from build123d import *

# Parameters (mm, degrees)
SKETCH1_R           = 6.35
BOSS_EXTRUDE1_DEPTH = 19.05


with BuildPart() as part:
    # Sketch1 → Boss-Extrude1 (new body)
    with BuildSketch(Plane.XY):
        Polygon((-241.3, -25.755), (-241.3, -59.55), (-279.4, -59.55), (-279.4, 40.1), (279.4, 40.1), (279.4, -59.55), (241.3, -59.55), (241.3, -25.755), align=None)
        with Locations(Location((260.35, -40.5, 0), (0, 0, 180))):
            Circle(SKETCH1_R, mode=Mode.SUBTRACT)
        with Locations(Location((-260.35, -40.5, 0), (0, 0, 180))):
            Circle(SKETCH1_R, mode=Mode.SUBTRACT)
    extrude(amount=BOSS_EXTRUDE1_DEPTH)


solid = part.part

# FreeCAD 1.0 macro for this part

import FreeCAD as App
import Part
import Sketcher
Q = App.Units.Quantity


def add_polygon(sketch, points):
    """Adds a closed chain of lines whose ends are joined by coincident constraints."""
    first, n = sketch.GeometryCount, len(points)
    for a, b in zip(points, points[1:] + points[:1]):
        sketch.addGeometry(Part.LineSegment(App.Vector(*a, 0), App.Vector(*b, 0)), False)
    for i in range(n):
        sketch.addConstraint(Sketcher.Constraint("Coincident", first + i, 2, first + (i + 1) % n, 1))

doc = App.newDocument("Part")
body = doc.addObject("PartDesign::Body", "Body")

# Sketch on XY plane
sketch1 = doc.addObject("Sketcher::SketchObject", "Sketch")
body.addObject(sketch1)
sketch1.AttachmentSupport = (doc.XY_Plane, [""])
sketch1.MapMode = "FlatFace"
add_polygon(sketch1, [(-241.3, -59.55), (-241.3, -25.755), (241.3, -25.755), (241.3, -59.55), (279.4, -59.55), (279.4, 40.1), (-279.4, 40.1), (-279.4, -59.55)])  # lines 0-7
sketch1.addGeometry(Part.Circle(App.Vector(260.35, -40.5, 0), App.Vector(0, 0, 1), 6.35), False)  # 8
sketch1.addGeometry(Part.Circle(App.Vector(-260.35, -40.5, 0), App.Vector(0, 0, 1), 6.35), False)  # 9
sketch1.addConstraint(Sketcher.Constraint("Vertical", 0))
sketch1.addConstraint(Sketcher.Constraint("Horizontal", 1))
sketch1.addConstraint(Sketcher.Constraint("Vertical", 2))
sketch1.addConstraint(Sketcher.Constraint("Horizontal", 3))
sketch1.addConstraint(Sketcher.Constraint("Vertical", 4))
sketch1.addConstraint(Sketcher.Constraint("Horizontal", 5))
sketch1.addConstraint(Sketcher.Constraint("Vertical", 6))
sketch1.addConstraint(Sketcher.Constraint("Horizontal", 7))
sketch1.addConstraint(Sketcher.Constraint("Equal", 8, 9))
sketch1.addConstraint(Sketcher.Constraint("Symmetric", 8, 3, 9, 3, -2))
sketch1.addConstraint(Sketcher.Constraint("Symmetric", 3, 2, 6, 2, -2))
sketch1.addConstraint(Sketcher.Constraint("Equal", 3, 7))
sketch1.addConstraint(Sketcher.Constraint("Diameter", 8, Q("0.5 in")))
sketch1.addConstraint(Sketcher.Constraint("DistanceX", 1, 1, 1, 2, Q("19 in")))
sketch1.addConstraint(Sketcher.Constraint("DistanceX", 5, 2, 5, 1, Q("22 in")))
sketch1.addConstraint(Sketcher.Constraint("DistanceX", 9, 3, 8, 3, Q("20.5 in")))
sketch1.addConstraint(Sketcher.Constraint("DistanceY", 2, 2, 8, 3, Q("0.75 in")))
sketch1.addConstraint(Sketcher.Constraint("DistanceY", 0, 1, 0, 2, Q("33.795 mm")))
sketch1.addConstraint(Sketcher.Constraint("DistanceY", 4, 1, 4, 2, Q("99.65 mm")))
sketch1.addConstraint(Sketcher.Constraint("DistanceY", 8, 3, -1, 1, Q("40.5 mm")))
pad1 = doc.addObject("PartDesign::Pad", "Pad")
body.addObject(pad1)
pad1.Profile = sketch1
pad1.Length = Q("0.75 in")

doc.recompute()
